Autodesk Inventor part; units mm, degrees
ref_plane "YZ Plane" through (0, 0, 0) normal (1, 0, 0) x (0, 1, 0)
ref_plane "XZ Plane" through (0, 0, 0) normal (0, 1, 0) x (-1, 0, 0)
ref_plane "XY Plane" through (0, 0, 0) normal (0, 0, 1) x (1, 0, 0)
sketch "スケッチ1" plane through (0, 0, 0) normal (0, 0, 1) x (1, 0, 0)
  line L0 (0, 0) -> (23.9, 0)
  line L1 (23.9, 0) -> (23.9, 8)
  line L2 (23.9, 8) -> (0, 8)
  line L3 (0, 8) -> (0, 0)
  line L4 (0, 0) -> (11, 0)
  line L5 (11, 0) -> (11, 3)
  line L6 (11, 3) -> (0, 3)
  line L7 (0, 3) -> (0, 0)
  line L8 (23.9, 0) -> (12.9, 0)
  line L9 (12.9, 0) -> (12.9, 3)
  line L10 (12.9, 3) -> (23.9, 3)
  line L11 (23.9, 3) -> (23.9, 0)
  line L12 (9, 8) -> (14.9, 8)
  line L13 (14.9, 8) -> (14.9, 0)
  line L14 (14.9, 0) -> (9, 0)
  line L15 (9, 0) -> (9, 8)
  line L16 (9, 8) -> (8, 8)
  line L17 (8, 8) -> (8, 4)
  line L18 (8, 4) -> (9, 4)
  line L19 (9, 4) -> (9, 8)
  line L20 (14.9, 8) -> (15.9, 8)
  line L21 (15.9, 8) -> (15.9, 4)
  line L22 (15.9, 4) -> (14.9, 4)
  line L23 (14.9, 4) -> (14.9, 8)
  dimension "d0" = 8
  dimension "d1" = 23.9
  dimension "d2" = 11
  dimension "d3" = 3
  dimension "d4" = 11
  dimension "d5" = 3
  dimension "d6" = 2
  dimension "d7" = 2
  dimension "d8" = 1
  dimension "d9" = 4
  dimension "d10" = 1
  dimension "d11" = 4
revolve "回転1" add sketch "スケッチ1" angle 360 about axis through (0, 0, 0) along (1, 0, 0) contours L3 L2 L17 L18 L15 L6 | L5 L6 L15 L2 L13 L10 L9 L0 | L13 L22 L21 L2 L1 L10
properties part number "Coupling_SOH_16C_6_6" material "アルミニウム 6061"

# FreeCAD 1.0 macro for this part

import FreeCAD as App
import Part
import Sketcher
Q = App.Units.Quantity


def add_polygon(sketch, points):
    """Adds a closed chain of lines whose ends are joined by coincident constraints."""
    first, n = sketch.GeometryCount, len(points)
    for a, b in zip(points, points[1:] + points[:1]):
        sketch.addGeometry(Part.LineSegment(App.Vector(*a, 0), App.Vector(*b, 0)), False)
    for i in range(n):
        sketch.addConstraint(Sketcher.Constraint("Coincident", first + i, 2, first + (i + 1) % n, 1))

doc = App.newDocument("Part")
body = doc.addObject("PartDesign::Body", "Body")

# Sketch on XY plane
sketch1 = doc.addObject("Sketcher::SketchObject", "Sketch")
body.addObject(sketch1)
sketch1.AttachmentSupport = (doc.XY_Plane, [""])
sketch1.MapMode = "FlatFace"
add_polygon(sketch1, [(0, 8), (0, 3), (11, 3), (11, 0), (12.9, 0), (12.9, 3), (23.9, 3), (23.9, 8), (15.9, 8), (15.9, 4), (14.9, 4), (14.9, 8), (9, 8), (9, 4), (8, 4), (8, 8)])  # lines 0-15
sketch1.addConstraint([
    Sketcher.Constraint("Vertical", 0),
    Sketcher.Constraint("Horizontal", 1),
    Sketcher.Constraint("Vertical", 2),
    Sketcher.Constraint("Horizontal", 3),
    Sketcher.Constraint("Vertical", 4),
    Sketcher.Constraint("Horizontal", 5),
    Sketcher.Constraint("Vertical", 6),
    Sketcher.Constraint("Horizontal", 7),
    Sketcher.Constraint("Vertical", 8),
    Sketcher.Constraint("Horizontal", 9),
    Sketcher.Constraint("Vertical", 10),
    Sketcher.Constraint("Horizontal", 11),
    Sketcher.Constraint("Vertical", 12),
    Sketcher.Constraint("Horizontal", 13),
    Sketcher.Constraint("Vertical", 14),
    Sketcher.Constraint("Horizontal", 15),
    Sketcher.Constraint("PointOnObject", 0, 2, -2),
    Sketcher.Constraint("PointOnObject", 2, 2, -1),
    Sketcher.Constraint("Horizontal", 1, 2, 4, 2),
    Sketcher.Constraint("Horizontal", 7, 2, 10, 2),
    Sketcher.Constraint("Horizontal", 9, 2, 12, 2),
    Sketcher.Constraint("Horizontal", 11, 2, 14, 2),
    Sketcher.Constraint("Equal", 1, 5),
    Sketcher.Constraint("Equal", 9, 13),
    Sketcher.Constraint("Equal", 7, 15),
    Sketcher.Constraint("DistanceX", 1, 1, 1, 2, Q("11 mm")),
    Sketcher.Constraint("DistanceX", 7, 2, 7, 1, Q("8 mm")),
    Sketcher.Constraint("DistanceX", 9, 2, 9, 1, Q("1 mm")),
    Sketcher.Constraint("DistanceY", 2, 2, 2, 1, Q("3 mm")),
    Sketcher.Constraint("DistanceY", 8, 2, 8, 1, Q("4 mm")),
    Sketcher.Constraint("DistanceY", -1, 1, 6, 2, Q("8 mm")),
    Sketcher.Constraint("DistanceX", -1, 1, 5, 2, Q("23.9 mm")),
])
revolution = doc.addObject("PartDesign::Revolution", "Revolution")
body.addObject(revolution)
revolution.Profile = sketch1
revolution.ReferenceAxis = (sketch1, ["H_Axis"])
revolution.Angle = 360

doc.recompute()
